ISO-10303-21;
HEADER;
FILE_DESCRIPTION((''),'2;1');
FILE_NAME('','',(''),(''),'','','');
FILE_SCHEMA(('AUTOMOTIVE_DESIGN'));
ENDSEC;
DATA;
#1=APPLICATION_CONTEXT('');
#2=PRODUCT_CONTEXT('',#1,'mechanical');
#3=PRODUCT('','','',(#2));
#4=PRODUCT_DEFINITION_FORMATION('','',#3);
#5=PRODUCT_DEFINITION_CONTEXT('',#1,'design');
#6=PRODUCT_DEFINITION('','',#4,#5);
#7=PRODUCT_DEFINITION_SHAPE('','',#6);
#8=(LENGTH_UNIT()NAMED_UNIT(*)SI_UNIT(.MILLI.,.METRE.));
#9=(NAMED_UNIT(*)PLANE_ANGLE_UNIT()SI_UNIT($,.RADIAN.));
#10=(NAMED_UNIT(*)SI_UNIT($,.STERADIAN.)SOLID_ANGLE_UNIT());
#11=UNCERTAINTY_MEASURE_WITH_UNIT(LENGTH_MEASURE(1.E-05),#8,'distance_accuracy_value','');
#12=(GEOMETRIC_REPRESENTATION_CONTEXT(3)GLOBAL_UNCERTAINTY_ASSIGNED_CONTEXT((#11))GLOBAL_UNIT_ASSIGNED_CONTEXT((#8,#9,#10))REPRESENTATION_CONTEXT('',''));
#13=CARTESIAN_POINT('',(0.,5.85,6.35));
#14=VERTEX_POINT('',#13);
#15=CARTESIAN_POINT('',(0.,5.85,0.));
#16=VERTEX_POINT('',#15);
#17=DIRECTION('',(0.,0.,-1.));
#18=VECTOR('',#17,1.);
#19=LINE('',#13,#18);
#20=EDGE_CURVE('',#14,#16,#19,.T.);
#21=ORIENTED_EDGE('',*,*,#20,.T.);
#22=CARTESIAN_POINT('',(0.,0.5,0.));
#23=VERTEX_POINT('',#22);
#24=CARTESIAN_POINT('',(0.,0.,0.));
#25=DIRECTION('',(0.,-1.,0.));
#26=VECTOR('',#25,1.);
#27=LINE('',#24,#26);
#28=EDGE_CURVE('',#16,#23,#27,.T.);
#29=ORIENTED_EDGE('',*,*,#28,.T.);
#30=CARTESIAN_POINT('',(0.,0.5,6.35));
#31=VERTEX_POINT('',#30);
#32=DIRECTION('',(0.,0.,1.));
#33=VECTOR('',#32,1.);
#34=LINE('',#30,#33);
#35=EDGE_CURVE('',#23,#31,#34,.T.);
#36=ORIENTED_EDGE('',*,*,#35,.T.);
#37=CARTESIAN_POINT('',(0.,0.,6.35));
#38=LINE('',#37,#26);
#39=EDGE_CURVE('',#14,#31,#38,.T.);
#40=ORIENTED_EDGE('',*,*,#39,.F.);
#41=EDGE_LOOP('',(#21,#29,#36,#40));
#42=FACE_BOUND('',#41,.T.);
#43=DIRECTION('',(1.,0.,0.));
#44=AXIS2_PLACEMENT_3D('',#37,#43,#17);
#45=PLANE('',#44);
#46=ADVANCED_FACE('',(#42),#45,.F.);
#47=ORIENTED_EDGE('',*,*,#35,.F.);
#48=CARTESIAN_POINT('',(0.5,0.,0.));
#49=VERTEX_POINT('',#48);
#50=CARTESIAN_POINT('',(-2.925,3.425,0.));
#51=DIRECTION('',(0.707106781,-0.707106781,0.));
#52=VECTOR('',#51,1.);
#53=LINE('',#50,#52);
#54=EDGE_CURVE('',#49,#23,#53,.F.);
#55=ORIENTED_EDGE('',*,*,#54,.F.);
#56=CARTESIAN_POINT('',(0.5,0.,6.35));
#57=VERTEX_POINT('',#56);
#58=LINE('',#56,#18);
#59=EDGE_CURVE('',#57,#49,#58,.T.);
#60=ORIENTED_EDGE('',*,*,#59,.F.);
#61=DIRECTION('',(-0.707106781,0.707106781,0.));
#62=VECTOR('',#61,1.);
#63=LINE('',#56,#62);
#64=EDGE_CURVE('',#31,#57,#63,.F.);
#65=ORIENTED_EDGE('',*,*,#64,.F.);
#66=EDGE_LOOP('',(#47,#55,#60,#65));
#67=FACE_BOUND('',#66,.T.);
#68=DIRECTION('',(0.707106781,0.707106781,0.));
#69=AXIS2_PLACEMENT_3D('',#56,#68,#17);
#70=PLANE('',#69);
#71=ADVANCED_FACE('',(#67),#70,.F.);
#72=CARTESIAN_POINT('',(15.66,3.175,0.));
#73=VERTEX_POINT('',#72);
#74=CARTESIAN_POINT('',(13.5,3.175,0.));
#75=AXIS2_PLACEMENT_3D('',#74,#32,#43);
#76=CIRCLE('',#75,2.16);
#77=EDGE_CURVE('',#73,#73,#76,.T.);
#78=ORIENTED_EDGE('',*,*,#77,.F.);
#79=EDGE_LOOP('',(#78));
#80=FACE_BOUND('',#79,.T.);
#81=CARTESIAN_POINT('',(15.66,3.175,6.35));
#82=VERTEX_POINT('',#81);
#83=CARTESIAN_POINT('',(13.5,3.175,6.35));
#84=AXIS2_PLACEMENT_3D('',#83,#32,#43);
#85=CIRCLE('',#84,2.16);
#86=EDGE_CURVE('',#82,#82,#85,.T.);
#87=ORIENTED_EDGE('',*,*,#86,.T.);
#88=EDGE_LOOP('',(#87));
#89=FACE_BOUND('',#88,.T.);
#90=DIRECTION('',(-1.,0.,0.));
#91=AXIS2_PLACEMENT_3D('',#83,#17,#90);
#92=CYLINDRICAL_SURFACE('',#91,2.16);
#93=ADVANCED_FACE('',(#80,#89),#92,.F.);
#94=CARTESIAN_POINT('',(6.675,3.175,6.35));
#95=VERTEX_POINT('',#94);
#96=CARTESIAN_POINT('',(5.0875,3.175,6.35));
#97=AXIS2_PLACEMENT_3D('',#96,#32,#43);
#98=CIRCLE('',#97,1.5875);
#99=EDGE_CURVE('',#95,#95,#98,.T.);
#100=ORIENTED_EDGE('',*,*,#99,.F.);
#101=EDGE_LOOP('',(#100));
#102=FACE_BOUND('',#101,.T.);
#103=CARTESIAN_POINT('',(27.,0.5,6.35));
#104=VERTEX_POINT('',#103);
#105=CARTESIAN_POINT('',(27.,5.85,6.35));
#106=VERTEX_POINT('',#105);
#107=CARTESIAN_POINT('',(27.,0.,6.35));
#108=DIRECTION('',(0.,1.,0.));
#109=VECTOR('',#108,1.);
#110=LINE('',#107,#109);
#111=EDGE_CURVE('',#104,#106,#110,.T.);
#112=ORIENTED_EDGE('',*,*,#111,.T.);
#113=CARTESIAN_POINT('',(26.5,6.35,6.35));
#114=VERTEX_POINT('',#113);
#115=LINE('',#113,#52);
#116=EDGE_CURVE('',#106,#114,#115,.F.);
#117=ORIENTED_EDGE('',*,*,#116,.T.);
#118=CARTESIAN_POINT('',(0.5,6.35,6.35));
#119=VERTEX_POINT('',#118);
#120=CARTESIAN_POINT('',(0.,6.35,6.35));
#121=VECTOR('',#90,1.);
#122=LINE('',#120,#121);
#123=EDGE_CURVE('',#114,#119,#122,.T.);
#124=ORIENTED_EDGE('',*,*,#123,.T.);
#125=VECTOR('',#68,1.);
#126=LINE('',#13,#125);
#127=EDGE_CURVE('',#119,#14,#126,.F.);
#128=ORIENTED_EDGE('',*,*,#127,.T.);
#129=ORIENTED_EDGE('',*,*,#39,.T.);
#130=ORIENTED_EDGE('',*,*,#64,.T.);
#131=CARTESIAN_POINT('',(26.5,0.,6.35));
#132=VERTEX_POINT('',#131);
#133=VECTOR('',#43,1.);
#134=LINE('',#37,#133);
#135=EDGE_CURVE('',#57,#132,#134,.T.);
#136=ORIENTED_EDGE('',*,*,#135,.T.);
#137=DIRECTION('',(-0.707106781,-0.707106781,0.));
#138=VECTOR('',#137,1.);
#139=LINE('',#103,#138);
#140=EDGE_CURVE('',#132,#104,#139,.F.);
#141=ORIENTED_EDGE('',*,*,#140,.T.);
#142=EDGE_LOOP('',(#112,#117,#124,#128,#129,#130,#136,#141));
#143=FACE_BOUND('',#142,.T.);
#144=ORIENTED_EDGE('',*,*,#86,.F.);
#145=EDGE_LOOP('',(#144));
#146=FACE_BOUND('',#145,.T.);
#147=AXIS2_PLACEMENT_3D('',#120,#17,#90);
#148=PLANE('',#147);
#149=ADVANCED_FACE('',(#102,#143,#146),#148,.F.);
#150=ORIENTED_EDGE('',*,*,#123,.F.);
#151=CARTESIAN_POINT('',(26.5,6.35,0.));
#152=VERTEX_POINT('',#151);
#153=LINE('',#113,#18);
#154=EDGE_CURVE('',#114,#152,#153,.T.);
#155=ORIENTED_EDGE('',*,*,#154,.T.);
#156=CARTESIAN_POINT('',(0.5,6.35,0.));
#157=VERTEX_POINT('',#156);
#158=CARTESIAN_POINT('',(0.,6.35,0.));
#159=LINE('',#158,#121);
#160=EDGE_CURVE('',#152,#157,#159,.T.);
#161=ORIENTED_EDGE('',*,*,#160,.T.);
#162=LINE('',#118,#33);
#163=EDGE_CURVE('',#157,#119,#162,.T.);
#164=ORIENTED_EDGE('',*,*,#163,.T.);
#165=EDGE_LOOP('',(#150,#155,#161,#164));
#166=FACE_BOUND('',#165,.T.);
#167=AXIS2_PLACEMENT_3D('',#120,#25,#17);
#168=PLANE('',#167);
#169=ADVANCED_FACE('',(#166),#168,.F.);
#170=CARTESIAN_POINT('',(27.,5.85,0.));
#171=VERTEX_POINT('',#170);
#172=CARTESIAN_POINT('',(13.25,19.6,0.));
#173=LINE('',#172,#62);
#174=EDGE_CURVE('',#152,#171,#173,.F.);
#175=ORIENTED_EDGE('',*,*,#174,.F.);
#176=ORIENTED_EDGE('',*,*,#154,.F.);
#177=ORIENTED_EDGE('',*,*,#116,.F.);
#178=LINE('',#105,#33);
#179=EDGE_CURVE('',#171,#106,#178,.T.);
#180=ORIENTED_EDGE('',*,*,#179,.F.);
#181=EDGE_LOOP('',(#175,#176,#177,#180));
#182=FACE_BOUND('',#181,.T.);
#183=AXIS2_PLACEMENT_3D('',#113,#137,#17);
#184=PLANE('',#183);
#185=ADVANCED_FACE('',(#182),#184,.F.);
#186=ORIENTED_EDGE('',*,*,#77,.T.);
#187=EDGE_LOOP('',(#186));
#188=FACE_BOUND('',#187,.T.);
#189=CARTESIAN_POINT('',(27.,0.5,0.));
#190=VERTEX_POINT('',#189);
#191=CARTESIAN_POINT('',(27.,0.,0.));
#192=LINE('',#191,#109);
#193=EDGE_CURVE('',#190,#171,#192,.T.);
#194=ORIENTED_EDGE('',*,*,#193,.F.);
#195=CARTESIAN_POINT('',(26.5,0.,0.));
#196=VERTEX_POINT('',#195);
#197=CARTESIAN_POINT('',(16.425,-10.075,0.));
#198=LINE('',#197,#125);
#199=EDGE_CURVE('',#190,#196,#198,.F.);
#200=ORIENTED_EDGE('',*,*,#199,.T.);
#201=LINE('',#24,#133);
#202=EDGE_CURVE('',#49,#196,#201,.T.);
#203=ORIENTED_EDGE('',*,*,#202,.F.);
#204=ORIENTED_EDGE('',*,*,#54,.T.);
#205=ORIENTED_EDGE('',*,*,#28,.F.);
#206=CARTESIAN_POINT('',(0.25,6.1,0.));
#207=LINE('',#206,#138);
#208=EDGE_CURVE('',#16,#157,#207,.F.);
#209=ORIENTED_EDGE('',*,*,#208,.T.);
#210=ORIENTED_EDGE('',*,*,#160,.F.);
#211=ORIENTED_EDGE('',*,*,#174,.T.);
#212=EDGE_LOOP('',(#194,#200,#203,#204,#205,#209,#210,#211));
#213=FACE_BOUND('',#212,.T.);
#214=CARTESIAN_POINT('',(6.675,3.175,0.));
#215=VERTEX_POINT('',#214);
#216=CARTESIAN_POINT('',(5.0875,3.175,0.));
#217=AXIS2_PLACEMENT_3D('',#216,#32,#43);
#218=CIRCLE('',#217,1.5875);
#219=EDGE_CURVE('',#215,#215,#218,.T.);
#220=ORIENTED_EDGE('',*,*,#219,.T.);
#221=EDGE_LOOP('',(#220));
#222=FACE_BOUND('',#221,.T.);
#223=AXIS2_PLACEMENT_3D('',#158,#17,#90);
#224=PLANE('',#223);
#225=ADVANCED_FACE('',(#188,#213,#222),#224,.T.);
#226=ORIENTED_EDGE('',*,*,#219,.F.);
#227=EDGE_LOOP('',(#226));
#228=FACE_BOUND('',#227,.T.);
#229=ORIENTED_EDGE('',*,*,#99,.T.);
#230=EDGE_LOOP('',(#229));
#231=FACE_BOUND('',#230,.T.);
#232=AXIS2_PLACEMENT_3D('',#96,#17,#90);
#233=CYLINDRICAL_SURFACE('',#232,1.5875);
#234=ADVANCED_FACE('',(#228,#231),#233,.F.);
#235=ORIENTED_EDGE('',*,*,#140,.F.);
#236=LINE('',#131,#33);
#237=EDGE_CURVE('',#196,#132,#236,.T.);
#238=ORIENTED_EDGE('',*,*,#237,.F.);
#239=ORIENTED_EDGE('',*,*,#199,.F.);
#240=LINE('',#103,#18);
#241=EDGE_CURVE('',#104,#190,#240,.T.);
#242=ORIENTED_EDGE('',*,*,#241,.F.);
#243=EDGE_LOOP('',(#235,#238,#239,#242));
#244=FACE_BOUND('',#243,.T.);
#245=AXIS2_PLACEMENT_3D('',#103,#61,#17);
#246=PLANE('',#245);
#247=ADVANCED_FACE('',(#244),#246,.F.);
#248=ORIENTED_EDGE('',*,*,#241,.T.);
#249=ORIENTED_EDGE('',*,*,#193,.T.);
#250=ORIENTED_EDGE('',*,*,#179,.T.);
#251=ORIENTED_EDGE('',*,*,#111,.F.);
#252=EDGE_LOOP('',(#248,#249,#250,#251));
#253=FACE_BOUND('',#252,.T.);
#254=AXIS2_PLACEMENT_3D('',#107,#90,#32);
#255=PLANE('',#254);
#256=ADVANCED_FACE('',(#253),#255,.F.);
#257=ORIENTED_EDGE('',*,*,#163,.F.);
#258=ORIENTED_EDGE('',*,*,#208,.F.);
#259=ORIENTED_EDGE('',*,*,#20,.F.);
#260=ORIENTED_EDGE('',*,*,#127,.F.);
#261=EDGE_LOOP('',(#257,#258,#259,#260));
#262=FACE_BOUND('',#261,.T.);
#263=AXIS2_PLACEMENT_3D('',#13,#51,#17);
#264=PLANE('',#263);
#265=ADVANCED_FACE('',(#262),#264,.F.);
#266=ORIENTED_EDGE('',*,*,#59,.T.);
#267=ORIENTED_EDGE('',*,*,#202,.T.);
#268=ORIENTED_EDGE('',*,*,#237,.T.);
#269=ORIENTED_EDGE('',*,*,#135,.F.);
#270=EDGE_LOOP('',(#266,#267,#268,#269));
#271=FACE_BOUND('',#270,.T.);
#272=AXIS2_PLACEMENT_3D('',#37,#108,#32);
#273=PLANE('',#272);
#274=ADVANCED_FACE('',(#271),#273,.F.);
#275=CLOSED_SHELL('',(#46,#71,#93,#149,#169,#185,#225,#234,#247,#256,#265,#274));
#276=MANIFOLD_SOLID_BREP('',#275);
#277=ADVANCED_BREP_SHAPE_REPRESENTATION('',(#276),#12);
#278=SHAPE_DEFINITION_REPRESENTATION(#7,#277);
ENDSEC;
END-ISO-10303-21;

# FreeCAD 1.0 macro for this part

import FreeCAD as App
import Part
import Sketcher

V = App.Vector
Q = App.Units.Quantity


def edges_at(feature, points):
    """Names of the edges that pass closest to the given points."""
    edges = feature.Shape.Edges
    near = lambda p: min(range(len(edges)), key=lambda i: edges[i].distToShape(Part.Vertex(*p))[0])
    return sorted({f"Edge{near(p) + 1}" for p in points})

doc = App.newDocument("Part")
body = doc.addObject("PartDesign::Body", "Body")

# Sketch on XY plane
sketch1 = body.newObject("Sketcher::SketchObject", "Sketch")
sketch1.AttachmentSupport = (doc.getObject("XY_Plane"), [""])
sketch1.MapMode = "FlatFace"
sketch1.addGeometry(Part.LineSegment(V(0, 6.3, 0), V(0, 0, 0)), False)
sketch1.addGeometry(Part.LineSegment(V(0, 0, 0), V(27, 0, 0)), False)
sketch1.addGeometry(Part.LineSegment(V(27, 0, 0), V(27, 6.3, 0)), False)
sketch1.addGeometry(Part.LineSegment(V(27, 6.3, 0), V(0, 6.3, 0)), False)
sketch1.addGeometry(Part.Circle(V(5.1, 3.2, 0), V(0, 0, 1), 1.6), False)
sketch1.addGeometry(Part.Circle(V(13.5, 3.2, 0), V(0, 0, 1), 2.2), False)
sketch1.addConstraint(Sketcher.Constraint("Coincident", 0, 2, 1, 1))
sketch1.addConstraint(Sketcher.Constraint("Coincident", 1, 2, 2, 1))
sketch1.addConstraint(Sketcher.Constraint("Coincident", 2, 2, 3, 1))
sketch1.addConstraint(Sketcher.Constraint("Coincident", 3, 2, 0, 1))
sketch1.addConstraint(Sketcher.Constraint("Vertical", 0))
sketch1.addConstraint(Sketcher.Constraint("Horizontal", 1))
sketch1.addConstraint(Sketcher.Constraint("Vertical", 2))
sketch1.addConstraint(Sketcher.Constraint("Horizontal", 3))
sketch1.addConstraint(Sketcher.Constraint("Coincident", 0, 2, -1, 1))
sketch1.addConstraint(Sketcher.Constraint("Horizontal", 4, 3, 5, 3))
sketch1.addConstraint(Sketcher.Constraint("Diameter", 5, Q("4.32 mm")))
sketch1.addConstraint(Sketcher.Constraint("DistanceX", 1, 1, 1, 2, Q("27 mm")))
sketch1.addConstraint(Sketcher.Constraint("Diameter", 4, Q("3.175 mm")))
sketch1.addConstraint(Sketcher.Constraint("DistanceY", 0, 2, 0, 1, Q("6.35 mm")))
sketch1.addConstraint(Sketcher.Constraint("DistanceX", -1, 1, 5, 3, Q("13.5 mm")))
sketch1.addConstraint(Sketcher.Constraint("DistanceY", -1, 1, 4, 3, Q("3.175 mm")))
sketch1.addConstraint(Sketcher.Constraint("DistanceX", -1, 1, 4, 3, Q("5.0875 mm")))
pad1 = body.newObject("PartDesign::Pad", "Pad")
pad1.Profile = sketch1
pad1.Length = 6.35
doc.recompute()

chamfer = body.newObject("PartDesign::Chamfer", "Chamfer")
chamfer.Base = (pad1, edges_at(pad1, [
    (0, 6.35, 3.175),
    (27, 6.35, 3.175),
    (27, 0, 3.175),
    (0, 0, 3.175),
]))
chamfer.Size = 0.5

doc.recompute()
